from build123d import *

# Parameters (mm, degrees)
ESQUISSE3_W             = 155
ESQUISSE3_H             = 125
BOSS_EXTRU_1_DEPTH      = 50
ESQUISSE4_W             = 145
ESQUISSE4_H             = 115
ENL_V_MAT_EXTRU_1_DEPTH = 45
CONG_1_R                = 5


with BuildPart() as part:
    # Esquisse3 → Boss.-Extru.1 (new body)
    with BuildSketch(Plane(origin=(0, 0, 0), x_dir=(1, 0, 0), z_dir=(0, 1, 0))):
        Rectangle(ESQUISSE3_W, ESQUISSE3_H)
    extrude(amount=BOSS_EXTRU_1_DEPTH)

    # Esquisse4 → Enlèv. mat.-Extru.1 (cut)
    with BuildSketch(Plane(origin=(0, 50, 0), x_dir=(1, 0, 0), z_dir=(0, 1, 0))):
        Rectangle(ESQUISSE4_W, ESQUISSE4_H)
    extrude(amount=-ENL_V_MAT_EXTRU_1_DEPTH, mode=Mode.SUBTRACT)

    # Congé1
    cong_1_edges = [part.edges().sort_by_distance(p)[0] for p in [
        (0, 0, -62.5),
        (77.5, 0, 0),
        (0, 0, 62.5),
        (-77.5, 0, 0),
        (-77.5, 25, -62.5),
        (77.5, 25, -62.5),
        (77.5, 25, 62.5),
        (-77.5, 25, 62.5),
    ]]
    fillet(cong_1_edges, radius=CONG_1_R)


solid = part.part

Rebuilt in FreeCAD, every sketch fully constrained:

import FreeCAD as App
import Part
import Sketcher
from FreeCAD import Vector
Q = App.Units.Quantity


def edges_at(feature, points):
    """Names of the edges that pass closest to the given points."""
    edges = feature.Shape.Edges
    near = lambda p: min(range(len(edges)), key=lambda i: edges[i].distToShape(Part.Vertex(*p))[0])
    return sorted({f"Edge{near(p) + 1}" for p in points})


def add_polygon(sketch, points):
    """Adds a closed chain of lines whose ends are joined by coincident constraints."""
    first, n = sketch.GeometryCount, len(points)
    for a, b in zip(points, points[1:] + points[:1]):
        sketch.addGeometry(Part.LineSegment(App.Vector(*a, 0), App.Vector(*b, 0)), False)
    for i in range(n):
        sketch.addConstraint(Sketcher.Constraint("Coincident", first + i, 2, first + (i + 1) % n, 1))

doc = App.newDocument("Part")
body = doc.addObject("PartDesign::Body", "Body")

# Sketch on XZ plane
sketch1 = body.newObject("Sketcher::SketchObject", "Sketch")
sketch1.AttachmentSupport = (doc.getObject("XZ_Plane"), [""])
sketch1.MapMode = "FlatFace"
add_polygon(sketch1, [(-78, -62), (-78, 62), (78, 62), (78, -62)])  # lines 0-3
sketch1.addConstraint([
    Sketcher.Constraint("Vertical", 0),
    Sketcher.Constraint("Horizontal", 1),
    Sketcher.Constraint("Vertical", 2),
    Sketcher.Constraint("Horizontal", 3),
    Sketcher.Constraint("Symmetric", 0, 2, 2, 2, -1, 1),
    Sketcher.Constraint("DistanceX", 1, 1, 1, 2, Q("155 mm")),
    Sketcher.Constraint("DistanceY", 0, 1, 0, 2, Q("125 mm")),
])
pad1 = body.newObject("PartDesign::Pad", "Pad")
pad1.Profile = sketch1
pad1.Length = 50
pad1.Reversed = True

# Sketch on XZ plane
sketch2 = body.newObject("Sketcher::SketchObject", "Sketch001")
sketch2.AttachmentSupport = (doc.getObject("XZ_Plane"), [""])
sketch2.MapMode = "FlatFace"
sketch2.AttachmentOffset = App.Placement(Vector(0, 0, -50), App.Rotation())
add_polygon(sketch2, [(-72, -58), (-72, 58), (72, 58), (72, -58)])  # lines 0-3
sketch2.addConstraint([
    Sketcher.Constraint("Vertical", 0),
    Sketcher.Constraint("Horizontal", 1),
    Sketcher.Constraint("Vertical", 2),
    Sketcher.Constraint("Horizontal", 3),
    Sketcher.Constraint("Symmetric", 0, 2, 2, 2, -1, 1),
    Sketcher.Constraint("DistanceX", 1, 1, 1, 2, Q("145 mm")),
    Sketcher.Constraint("DistanceY", 0, 1, 0, 2, Q("115 mm")),
])
pocket1 = body.newObject("PartDesign::Pocket", "Pocket")
pocket1.Profile = sketch2
pocket1.Length = 45
pocket1.Reversed = True
doc.recompute()

fillet = body.newObject("PartDesign::Fillet", "Fillet")
fillet.Base = (pocket1, edges_at(pocket1, [
    (0, 0, -62.5),
    (77.5, 0, 0),
    (0, 0, 62.5),
    (-77.5, 0, 0),
    (-77.5, 25, -62.5),
    (77.5, 25, -62.5),
    (77.5, 25, 62.5),
    (-77.5, 25, 62.5),
]))
fillet.Radius = 5

doc.recompute()
